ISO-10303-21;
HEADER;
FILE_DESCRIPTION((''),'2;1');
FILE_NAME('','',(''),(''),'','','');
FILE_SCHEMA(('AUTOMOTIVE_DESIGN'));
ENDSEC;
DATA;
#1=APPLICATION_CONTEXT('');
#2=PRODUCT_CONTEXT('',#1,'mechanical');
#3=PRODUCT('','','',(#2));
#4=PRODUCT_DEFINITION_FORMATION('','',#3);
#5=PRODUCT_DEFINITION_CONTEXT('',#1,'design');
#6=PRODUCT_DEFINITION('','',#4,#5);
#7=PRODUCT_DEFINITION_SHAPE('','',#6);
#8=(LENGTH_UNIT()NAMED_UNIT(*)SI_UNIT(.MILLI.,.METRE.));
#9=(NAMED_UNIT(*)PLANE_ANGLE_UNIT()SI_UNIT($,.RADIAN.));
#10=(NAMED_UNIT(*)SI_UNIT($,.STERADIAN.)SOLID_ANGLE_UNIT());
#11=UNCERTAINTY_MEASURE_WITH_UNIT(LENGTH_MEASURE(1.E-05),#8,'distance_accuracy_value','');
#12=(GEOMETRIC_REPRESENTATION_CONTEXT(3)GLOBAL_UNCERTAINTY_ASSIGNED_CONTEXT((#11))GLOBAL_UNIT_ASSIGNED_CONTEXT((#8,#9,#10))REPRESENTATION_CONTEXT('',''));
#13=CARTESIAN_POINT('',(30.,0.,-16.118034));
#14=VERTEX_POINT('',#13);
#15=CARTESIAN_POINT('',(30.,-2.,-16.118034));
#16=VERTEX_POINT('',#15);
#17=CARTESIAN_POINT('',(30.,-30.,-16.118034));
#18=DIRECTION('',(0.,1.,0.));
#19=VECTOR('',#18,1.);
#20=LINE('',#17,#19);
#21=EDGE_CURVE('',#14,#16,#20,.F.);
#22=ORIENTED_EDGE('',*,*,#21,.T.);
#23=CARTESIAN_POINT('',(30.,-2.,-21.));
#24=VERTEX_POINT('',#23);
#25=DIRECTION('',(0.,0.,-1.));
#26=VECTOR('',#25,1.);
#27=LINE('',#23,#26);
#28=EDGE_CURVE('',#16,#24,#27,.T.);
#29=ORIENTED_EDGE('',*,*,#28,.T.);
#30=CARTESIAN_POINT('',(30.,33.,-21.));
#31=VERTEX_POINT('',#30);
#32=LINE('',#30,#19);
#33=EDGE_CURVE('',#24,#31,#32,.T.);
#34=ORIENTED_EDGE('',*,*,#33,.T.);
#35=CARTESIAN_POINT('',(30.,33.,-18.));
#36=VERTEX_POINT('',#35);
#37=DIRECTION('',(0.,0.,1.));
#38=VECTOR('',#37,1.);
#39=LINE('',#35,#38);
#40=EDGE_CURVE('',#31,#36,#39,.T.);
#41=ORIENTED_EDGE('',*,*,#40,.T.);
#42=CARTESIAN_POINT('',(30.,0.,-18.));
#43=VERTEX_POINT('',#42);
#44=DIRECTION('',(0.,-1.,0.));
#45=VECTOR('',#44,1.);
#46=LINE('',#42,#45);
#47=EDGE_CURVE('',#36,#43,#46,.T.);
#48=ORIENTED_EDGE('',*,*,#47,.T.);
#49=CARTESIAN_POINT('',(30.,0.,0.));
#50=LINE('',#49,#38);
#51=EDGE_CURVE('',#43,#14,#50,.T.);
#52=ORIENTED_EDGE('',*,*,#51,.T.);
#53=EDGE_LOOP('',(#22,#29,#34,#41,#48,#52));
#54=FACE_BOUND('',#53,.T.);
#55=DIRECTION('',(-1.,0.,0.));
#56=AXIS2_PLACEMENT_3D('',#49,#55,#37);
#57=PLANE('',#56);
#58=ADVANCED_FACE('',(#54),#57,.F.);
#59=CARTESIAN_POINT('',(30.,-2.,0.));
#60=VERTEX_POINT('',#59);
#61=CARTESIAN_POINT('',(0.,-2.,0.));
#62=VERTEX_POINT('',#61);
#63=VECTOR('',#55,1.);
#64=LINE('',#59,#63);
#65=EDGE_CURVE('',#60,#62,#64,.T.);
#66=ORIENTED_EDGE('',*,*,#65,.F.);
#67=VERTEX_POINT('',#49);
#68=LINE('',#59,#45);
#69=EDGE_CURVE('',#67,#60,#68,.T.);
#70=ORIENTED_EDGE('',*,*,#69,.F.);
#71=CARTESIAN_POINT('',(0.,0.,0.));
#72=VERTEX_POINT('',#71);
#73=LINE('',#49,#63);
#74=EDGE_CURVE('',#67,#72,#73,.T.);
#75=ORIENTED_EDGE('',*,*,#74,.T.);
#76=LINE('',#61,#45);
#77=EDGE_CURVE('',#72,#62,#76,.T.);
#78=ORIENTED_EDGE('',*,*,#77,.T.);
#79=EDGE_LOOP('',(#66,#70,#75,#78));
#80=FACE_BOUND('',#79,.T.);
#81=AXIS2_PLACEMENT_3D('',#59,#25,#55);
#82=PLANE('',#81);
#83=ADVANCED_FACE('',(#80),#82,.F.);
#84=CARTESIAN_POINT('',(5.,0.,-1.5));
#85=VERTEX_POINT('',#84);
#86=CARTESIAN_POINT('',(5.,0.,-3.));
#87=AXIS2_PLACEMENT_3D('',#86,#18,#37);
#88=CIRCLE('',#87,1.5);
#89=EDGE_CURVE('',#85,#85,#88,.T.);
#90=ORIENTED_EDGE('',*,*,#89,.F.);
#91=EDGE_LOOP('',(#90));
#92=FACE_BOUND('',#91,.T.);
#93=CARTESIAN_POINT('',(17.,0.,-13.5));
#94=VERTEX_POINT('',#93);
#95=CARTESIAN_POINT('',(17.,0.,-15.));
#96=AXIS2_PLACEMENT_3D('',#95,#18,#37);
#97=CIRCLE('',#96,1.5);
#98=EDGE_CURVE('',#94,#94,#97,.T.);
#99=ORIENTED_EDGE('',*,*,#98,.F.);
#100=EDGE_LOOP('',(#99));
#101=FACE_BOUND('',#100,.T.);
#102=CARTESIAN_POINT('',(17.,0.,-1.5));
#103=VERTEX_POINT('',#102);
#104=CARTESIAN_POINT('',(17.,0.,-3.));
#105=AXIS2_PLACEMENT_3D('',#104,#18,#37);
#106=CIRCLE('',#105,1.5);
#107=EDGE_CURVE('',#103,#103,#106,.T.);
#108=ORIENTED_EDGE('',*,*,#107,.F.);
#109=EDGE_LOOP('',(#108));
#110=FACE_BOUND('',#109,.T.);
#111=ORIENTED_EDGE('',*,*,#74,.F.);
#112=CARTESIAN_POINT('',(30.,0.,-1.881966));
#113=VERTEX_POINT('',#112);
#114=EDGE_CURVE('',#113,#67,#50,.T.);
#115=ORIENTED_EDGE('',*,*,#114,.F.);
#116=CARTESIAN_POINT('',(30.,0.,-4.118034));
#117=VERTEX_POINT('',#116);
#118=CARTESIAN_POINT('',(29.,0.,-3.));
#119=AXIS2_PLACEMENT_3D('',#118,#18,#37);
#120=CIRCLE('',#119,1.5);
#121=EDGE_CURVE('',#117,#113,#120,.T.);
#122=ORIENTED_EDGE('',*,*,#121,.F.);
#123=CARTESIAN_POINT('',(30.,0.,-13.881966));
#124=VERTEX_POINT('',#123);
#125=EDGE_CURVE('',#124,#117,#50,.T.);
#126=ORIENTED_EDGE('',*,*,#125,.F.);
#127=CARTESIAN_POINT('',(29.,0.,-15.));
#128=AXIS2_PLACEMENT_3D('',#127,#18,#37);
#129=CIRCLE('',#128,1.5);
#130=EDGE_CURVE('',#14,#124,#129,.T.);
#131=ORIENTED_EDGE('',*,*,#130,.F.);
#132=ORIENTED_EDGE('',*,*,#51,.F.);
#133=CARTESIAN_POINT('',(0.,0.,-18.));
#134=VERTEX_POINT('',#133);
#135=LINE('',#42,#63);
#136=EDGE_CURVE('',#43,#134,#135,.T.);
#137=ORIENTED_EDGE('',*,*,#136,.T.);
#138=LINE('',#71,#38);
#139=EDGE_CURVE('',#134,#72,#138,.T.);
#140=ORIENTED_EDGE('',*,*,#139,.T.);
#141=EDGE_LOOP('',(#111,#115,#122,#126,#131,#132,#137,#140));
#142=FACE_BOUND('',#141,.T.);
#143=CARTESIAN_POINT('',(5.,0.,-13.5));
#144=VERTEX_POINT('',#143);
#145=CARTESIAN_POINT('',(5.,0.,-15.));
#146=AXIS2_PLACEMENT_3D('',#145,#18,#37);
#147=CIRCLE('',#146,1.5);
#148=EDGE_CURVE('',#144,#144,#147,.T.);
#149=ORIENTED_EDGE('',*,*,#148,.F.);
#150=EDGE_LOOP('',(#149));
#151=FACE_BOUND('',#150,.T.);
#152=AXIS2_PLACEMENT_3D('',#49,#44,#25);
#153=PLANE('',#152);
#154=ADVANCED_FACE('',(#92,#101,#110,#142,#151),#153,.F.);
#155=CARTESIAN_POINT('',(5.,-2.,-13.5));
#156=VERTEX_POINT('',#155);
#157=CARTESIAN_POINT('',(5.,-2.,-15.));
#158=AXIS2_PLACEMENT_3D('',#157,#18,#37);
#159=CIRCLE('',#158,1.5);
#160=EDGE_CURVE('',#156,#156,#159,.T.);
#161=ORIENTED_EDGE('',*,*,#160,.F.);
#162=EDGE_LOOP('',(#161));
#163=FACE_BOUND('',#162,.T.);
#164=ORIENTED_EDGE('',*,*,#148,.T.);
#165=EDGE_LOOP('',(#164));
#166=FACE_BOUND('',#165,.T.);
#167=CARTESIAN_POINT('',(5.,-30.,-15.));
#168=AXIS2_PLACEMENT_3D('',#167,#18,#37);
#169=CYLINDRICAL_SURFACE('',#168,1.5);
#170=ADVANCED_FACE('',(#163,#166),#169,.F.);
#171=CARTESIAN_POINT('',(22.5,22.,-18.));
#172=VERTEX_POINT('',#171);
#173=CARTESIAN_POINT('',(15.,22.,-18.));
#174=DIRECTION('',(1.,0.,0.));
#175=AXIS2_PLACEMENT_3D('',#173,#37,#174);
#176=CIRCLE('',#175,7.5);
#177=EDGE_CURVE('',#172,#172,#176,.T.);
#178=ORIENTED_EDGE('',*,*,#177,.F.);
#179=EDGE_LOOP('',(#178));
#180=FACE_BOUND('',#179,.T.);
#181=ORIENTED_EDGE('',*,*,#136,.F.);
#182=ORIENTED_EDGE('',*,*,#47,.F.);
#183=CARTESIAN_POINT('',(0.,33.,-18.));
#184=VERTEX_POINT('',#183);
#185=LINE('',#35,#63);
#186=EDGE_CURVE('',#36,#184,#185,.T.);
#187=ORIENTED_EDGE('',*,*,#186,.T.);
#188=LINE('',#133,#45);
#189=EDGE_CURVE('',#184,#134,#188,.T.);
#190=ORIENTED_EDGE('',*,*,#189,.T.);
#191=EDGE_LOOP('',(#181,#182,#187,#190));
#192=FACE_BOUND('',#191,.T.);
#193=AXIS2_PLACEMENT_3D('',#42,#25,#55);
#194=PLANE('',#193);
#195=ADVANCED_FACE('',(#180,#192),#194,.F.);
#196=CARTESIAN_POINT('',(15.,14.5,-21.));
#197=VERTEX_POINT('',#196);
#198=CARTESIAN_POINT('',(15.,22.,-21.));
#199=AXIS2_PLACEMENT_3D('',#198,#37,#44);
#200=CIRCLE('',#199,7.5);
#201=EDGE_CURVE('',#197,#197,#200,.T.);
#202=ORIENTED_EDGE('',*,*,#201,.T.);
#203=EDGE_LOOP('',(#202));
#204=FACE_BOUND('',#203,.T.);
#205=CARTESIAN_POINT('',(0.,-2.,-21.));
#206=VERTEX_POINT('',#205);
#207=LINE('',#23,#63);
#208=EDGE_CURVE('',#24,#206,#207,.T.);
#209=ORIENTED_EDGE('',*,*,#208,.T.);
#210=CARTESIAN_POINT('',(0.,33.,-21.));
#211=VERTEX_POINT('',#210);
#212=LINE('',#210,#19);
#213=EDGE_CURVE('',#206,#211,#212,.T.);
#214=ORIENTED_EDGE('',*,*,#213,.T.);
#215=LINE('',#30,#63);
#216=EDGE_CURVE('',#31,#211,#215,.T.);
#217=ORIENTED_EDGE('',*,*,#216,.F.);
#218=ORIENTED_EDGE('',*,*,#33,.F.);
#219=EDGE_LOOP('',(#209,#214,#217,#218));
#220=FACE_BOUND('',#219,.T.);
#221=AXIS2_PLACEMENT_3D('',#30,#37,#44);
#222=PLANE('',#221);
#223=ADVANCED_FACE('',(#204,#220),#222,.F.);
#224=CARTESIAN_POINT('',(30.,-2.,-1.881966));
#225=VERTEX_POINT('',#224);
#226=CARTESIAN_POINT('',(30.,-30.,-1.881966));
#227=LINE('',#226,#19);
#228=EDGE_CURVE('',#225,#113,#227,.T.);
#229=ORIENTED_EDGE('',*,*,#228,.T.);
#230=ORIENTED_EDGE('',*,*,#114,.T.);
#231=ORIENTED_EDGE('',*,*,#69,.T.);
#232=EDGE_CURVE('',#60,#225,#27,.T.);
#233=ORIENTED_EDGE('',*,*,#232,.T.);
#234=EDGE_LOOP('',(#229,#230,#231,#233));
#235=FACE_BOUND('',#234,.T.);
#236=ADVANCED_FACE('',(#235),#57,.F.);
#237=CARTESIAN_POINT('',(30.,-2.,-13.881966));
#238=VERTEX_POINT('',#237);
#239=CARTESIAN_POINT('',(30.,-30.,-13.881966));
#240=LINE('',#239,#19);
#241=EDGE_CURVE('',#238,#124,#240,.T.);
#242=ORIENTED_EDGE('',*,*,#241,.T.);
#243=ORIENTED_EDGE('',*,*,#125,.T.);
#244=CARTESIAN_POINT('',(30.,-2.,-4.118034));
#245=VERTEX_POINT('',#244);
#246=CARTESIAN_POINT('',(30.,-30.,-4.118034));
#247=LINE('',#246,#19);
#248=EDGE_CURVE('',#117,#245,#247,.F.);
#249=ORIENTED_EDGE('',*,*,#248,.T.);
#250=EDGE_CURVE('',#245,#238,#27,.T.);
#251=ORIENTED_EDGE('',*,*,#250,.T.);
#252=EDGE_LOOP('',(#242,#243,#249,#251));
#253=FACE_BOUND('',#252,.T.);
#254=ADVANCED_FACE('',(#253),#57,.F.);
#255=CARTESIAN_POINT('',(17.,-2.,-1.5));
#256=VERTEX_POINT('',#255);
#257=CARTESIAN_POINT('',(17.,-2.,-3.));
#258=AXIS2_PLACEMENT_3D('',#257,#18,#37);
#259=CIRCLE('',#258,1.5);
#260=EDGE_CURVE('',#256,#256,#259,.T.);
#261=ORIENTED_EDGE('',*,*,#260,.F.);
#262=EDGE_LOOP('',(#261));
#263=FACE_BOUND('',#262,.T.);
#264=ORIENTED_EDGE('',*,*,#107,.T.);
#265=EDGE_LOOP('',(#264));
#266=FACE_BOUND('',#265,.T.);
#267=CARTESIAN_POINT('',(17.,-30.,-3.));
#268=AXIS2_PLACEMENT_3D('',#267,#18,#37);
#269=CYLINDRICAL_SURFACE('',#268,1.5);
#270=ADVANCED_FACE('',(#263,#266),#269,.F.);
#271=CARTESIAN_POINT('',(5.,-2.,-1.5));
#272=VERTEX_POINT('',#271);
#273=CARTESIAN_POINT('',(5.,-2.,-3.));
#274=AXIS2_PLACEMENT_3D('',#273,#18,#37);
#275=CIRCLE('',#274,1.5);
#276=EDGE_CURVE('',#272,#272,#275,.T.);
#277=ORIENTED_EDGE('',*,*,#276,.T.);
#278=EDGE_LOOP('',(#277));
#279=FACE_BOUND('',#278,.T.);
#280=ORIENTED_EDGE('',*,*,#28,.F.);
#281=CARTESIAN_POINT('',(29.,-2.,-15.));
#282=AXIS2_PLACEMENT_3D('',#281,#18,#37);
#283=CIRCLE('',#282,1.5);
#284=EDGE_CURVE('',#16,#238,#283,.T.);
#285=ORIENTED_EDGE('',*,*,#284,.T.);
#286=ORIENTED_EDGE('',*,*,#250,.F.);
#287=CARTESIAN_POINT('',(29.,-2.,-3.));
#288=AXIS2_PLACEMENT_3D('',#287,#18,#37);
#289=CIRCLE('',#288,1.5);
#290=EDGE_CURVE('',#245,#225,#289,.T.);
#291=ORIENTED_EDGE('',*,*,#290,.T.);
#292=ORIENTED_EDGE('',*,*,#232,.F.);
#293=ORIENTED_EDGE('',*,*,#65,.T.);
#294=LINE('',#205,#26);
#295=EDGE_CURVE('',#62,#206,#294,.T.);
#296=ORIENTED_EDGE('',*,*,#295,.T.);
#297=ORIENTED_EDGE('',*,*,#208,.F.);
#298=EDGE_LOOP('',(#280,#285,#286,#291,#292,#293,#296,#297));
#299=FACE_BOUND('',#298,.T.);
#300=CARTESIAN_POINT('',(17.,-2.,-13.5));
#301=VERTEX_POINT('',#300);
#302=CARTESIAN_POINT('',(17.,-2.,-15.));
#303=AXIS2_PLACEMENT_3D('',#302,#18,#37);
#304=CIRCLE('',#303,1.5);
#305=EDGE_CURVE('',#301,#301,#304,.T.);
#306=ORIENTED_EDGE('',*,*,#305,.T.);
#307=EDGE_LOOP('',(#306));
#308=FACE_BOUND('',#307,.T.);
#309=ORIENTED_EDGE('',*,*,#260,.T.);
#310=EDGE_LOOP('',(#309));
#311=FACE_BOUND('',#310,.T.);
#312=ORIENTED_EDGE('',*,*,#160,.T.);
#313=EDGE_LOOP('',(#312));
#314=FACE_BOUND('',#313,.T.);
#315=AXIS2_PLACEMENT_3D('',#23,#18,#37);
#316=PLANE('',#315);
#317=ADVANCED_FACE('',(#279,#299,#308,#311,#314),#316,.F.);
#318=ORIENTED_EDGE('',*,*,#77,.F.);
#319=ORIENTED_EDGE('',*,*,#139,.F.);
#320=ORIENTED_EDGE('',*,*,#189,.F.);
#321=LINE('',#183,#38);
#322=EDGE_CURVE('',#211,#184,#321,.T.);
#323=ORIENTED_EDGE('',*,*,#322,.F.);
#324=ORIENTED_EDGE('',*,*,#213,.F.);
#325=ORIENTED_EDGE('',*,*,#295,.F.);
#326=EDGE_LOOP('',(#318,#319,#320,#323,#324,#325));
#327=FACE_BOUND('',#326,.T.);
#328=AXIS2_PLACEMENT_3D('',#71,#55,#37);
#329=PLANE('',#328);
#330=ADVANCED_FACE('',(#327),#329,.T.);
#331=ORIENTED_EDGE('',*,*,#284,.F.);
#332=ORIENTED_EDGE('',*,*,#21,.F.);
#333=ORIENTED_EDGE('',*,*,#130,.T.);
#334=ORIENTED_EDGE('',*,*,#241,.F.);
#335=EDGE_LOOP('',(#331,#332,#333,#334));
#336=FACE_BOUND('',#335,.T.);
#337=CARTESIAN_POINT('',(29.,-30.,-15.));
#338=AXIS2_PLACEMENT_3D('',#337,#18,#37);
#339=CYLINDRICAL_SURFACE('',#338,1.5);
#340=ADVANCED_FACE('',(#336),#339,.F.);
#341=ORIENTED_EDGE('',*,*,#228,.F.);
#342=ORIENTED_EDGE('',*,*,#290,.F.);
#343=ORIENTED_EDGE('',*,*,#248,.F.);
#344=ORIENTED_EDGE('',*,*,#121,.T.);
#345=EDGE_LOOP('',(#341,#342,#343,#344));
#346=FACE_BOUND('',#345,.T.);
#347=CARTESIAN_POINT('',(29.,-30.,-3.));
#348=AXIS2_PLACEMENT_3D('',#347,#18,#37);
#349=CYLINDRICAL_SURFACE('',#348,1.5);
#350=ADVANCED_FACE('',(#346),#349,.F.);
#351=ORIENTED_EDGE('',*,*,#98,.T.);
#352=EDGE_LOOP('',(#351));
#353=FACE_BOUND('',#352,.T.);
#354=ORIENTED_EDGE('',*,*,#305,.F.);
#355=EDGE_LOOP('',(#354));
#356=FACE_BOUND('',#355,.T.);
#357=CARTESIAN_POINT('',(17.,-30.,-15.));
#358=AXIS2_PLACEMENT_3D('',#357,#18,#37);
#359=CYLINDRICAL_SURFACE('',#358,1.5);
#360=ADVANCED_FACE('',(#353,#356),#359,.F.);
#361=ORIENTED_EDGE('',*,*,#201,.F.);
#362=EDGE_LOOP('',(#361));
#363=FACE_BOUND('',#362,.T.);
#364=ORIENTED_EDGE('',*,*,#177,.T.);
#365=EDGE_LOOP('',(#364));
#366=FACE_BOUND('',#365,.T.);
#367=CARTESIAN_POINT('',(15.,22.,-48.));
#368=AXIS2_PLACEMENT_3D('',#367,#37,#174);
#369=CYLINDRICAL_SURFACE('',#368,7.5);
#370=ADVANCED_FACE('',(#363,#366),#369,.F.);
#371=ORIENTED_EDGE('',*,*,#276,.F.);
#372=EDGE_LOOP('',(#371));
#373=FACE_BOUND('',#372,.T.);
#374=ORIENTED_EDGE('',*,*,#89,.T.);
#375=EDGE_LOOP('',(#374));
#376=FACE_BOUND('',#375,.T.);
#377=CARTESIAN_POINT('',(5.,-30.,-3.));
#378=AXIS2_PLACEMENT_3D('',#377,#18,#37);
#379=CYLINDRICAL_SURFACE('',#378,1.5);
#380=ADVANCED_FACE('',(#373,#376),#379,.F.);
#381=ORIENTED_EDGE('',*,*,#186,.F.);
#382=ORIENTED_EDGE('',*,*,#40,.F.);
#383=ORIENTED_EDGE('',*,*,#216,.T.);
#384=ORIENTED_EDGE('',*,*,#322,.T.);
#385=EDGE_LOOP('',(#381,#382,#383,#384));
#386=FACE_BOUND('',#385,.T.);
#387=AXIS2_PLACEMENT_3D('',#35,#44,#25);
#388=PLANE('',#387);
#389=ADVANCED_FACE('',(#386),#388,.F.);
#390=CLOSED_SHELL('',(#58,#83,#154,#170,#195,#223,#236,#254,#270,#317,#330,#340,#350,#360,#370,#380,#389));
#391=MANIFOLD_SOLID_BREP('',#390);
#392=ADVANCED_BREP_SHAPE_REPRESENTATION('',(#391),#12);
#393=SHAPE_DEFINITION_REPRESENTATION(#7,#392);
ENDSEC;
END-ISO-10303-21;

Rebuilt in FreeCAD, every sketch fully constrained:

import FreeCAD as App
import Part
import Sketcher
from FreeCAD import Vector
Q = App.Units.Quantity

doc = App.newDocument("Part")
body = doc.addObject("PartDesign::Body", "Body")

# Sketch on YZ plane
sketch1 = doc.addObject("Sketcher::SketchObject", "Sketch")
body.addObject(sketch1)
sketch1.AttachmentSupport = (doc.YZ_Plane, [""])
sketch1.MapMode = "FlatFace"
sketch1.addGeometry([
    Part.LineSegment(Vector(0, -18, 0), Vector(0, 0, 0)),  # 0
    Part.LineSegment(Vector(0, 0, 0), Vector(-2, 0, 0)),  # 1
    Part.LineSegment(Vector(-2, 0, 0), Vector(-2, -21, 0)),  # 2
    Part.LineSegment(Vector(-2, -21, 0), Vector(33, -21, 0)),  # 3
    Part.LineSegment(Vector(33, -21, 0), Vector(33, -18, 0)),  # 4
    Part.LineSegment(Vector(33, -18, 0), Vector(0, -18, 0)),  # 5
], False)
sketch1.addConstraint([
    Sketcher.Constraint("Coincident", 0, 2, 1, 1),
    Sketcher.Constraint("Coincident", 1, 2, 2, 1),
    Sketcher.Constraint("Coincident", 2, 2, 3, 1),
    Sketcher.Constraint("Coincident", 3, 2, 4, 1),
    Sketcher.Constraint("Coincident", 4, 2, 5, 1),
    Sketcher.Constraint("Coincident", 5, 2, 0, 1),
    Sketcher.Constraint("Vertical", 0),
    Sketcher.Constraint("Horizontal", 1),
    Sketcher.Constraint("Vertical", 2),
    Sketcher.Constraint("Horizontal", 3),
    Sketcher.Constraint("Vertical", 4),
    Sketcher.Constraint("Horizontal", 5),
    Sketcher.Constraint("Coincident", 0, 2, -1, 1),
    Sketcher.Constraint("DistanceX", 1, 2, 1, 1, Q("2 mm")),
    Sketcher.Constraint("DistanceX", 3, 1, 3, 2, Q("35 mm")),
    Sketcher.Constraint("DistanceY", 0, 1, 0, 2, Q("18 mm")),
    Sketcher.Constraint("DistanceY", 2, 2, 2, 1, Q("21 mm")),
])
pad1 = doc.addObject("PartDesign::Pad", "Pad")
body.addObject(pad1)
pad1.Profile = sketch1
pad1.Length = 30

# Sketch on XY plane
sketch2 = doc.addObject("Sketcher::SketchObject", "Sketch001")
body.addObject(sketch2)
sketch2.AttachmentSupport = (doc.XY_Plane, [""])
sketch2.MapMode = "FlatFace"
sketch2.AttachmentOffset = App.Placement(Vector(0, 0, -18), App.Rotation())
sketch2.addGeometry(Part.Circle(Vector(15, 22, 0), Vector(0, 0, 1), 7.5), False)
sketch2.addConstraint([
    Sketcher.Constraint("Diameter", 0, Q("15 mm")),
    Sketcher.Constraint("DistanceX", -1, 1, 0, 3, Q("15 mm")),
    Sketcher.Constraint("DistanceY", -1, 1, 0, 3, Q("22 mm")),
])
pocket1 = doc.addObject("PartDesign::Pocket", "Pocket")
body.addObject(pocket1)
pocket1.Profile = sketch2
pocket1.Length = 30

# Sketch on XZ plane
sketch3 = doc.addObject("Sketcher::SketchObject", "Sketch002")
body.addObject(sketch3)
sketch3.AttachmentSupport = (doc.XZ_Plane, [""])
sketch3.MapMode = "FlatFace"
sketch3.addGeometry([
    Part.Circle(Vector(5, -3, 0), Vector(0, 0, 1), 1.5),  # 0
    Part.Circle(Vector(17, -3, 0), Vector(0, 0, 1), 1.5),  # 1
    Part.Circle(Vector(29, -3, 0), Vector(0, 0, 1), 1.5),  # 2
    Part.Circle(Vector(17, -15, 0), Vector(0, 0, 1), 1.5),  # 3
    Part.Circle(Vector(29, -15, 0), Vector(0, 0, 1), 1.5),  # 4
    Part.Circle(Vector(5, -15, 0), Vector(0, 0, 1), 1.5),  # 5
], False)
sketch3.addConstraint([
    Sketcher.Constraint("Equal", 0, 1),
    Sketcher.Constraint("Equal", 1, 2),
    Sketcher.Constraint("Equal", 2, 3),
    Sketcher.Constraint("Equal", 3, 4),
    Sketcher.Constraint("Equal", 4, 5),
    Sketcher.Constraint("Horizontal", 0, 3, 1, 3),
    Sketcher.Constraint("Horizontal", 1, 3, 2, 3),
    Sketcher.Constraint("Horizontal", 3, 3, 4, 3),
    Sketcher.Constraint("Horizontal", 4, 3, 5, 3),
    Sketcher.Constraint("Vertical", 1, 3, 3, 3),
    Sketcher.Constraint("Vertical", 2, 3, 4, 3),
    Sketcher.Constraint("Vertical", 0, 3, 5, 3),
    Sketcher.Constraint("Diameter", 0, Q("3 mm")),
    Sketcher.Constraint("DistanceX", -1, 1, 0, 3, Q("5 mm")),
    Sketcher.Constraint("DistanceY", 0, 3, -1, 1, Q("3 mm")),
    Sketcher.Constraint("DistanceX", -1, 1, 1, 3, Q("17 mm")),
    Sketcher.Constraint("DistanceX", -1, 1, 2, 3, Q("29 mm")),
    Sketcher.Constraint("DistanceY", 3, 3, -1, 1, Q("15 mm")),
])
pocket2 = doc.addObject("PartDesign::Pocket", "Pocket001")
body.addObject(pocket2)
pocket2.Profile = sketch3
pocket2.Length = 30
pocket2.Reversed = True

doc.recompute()
